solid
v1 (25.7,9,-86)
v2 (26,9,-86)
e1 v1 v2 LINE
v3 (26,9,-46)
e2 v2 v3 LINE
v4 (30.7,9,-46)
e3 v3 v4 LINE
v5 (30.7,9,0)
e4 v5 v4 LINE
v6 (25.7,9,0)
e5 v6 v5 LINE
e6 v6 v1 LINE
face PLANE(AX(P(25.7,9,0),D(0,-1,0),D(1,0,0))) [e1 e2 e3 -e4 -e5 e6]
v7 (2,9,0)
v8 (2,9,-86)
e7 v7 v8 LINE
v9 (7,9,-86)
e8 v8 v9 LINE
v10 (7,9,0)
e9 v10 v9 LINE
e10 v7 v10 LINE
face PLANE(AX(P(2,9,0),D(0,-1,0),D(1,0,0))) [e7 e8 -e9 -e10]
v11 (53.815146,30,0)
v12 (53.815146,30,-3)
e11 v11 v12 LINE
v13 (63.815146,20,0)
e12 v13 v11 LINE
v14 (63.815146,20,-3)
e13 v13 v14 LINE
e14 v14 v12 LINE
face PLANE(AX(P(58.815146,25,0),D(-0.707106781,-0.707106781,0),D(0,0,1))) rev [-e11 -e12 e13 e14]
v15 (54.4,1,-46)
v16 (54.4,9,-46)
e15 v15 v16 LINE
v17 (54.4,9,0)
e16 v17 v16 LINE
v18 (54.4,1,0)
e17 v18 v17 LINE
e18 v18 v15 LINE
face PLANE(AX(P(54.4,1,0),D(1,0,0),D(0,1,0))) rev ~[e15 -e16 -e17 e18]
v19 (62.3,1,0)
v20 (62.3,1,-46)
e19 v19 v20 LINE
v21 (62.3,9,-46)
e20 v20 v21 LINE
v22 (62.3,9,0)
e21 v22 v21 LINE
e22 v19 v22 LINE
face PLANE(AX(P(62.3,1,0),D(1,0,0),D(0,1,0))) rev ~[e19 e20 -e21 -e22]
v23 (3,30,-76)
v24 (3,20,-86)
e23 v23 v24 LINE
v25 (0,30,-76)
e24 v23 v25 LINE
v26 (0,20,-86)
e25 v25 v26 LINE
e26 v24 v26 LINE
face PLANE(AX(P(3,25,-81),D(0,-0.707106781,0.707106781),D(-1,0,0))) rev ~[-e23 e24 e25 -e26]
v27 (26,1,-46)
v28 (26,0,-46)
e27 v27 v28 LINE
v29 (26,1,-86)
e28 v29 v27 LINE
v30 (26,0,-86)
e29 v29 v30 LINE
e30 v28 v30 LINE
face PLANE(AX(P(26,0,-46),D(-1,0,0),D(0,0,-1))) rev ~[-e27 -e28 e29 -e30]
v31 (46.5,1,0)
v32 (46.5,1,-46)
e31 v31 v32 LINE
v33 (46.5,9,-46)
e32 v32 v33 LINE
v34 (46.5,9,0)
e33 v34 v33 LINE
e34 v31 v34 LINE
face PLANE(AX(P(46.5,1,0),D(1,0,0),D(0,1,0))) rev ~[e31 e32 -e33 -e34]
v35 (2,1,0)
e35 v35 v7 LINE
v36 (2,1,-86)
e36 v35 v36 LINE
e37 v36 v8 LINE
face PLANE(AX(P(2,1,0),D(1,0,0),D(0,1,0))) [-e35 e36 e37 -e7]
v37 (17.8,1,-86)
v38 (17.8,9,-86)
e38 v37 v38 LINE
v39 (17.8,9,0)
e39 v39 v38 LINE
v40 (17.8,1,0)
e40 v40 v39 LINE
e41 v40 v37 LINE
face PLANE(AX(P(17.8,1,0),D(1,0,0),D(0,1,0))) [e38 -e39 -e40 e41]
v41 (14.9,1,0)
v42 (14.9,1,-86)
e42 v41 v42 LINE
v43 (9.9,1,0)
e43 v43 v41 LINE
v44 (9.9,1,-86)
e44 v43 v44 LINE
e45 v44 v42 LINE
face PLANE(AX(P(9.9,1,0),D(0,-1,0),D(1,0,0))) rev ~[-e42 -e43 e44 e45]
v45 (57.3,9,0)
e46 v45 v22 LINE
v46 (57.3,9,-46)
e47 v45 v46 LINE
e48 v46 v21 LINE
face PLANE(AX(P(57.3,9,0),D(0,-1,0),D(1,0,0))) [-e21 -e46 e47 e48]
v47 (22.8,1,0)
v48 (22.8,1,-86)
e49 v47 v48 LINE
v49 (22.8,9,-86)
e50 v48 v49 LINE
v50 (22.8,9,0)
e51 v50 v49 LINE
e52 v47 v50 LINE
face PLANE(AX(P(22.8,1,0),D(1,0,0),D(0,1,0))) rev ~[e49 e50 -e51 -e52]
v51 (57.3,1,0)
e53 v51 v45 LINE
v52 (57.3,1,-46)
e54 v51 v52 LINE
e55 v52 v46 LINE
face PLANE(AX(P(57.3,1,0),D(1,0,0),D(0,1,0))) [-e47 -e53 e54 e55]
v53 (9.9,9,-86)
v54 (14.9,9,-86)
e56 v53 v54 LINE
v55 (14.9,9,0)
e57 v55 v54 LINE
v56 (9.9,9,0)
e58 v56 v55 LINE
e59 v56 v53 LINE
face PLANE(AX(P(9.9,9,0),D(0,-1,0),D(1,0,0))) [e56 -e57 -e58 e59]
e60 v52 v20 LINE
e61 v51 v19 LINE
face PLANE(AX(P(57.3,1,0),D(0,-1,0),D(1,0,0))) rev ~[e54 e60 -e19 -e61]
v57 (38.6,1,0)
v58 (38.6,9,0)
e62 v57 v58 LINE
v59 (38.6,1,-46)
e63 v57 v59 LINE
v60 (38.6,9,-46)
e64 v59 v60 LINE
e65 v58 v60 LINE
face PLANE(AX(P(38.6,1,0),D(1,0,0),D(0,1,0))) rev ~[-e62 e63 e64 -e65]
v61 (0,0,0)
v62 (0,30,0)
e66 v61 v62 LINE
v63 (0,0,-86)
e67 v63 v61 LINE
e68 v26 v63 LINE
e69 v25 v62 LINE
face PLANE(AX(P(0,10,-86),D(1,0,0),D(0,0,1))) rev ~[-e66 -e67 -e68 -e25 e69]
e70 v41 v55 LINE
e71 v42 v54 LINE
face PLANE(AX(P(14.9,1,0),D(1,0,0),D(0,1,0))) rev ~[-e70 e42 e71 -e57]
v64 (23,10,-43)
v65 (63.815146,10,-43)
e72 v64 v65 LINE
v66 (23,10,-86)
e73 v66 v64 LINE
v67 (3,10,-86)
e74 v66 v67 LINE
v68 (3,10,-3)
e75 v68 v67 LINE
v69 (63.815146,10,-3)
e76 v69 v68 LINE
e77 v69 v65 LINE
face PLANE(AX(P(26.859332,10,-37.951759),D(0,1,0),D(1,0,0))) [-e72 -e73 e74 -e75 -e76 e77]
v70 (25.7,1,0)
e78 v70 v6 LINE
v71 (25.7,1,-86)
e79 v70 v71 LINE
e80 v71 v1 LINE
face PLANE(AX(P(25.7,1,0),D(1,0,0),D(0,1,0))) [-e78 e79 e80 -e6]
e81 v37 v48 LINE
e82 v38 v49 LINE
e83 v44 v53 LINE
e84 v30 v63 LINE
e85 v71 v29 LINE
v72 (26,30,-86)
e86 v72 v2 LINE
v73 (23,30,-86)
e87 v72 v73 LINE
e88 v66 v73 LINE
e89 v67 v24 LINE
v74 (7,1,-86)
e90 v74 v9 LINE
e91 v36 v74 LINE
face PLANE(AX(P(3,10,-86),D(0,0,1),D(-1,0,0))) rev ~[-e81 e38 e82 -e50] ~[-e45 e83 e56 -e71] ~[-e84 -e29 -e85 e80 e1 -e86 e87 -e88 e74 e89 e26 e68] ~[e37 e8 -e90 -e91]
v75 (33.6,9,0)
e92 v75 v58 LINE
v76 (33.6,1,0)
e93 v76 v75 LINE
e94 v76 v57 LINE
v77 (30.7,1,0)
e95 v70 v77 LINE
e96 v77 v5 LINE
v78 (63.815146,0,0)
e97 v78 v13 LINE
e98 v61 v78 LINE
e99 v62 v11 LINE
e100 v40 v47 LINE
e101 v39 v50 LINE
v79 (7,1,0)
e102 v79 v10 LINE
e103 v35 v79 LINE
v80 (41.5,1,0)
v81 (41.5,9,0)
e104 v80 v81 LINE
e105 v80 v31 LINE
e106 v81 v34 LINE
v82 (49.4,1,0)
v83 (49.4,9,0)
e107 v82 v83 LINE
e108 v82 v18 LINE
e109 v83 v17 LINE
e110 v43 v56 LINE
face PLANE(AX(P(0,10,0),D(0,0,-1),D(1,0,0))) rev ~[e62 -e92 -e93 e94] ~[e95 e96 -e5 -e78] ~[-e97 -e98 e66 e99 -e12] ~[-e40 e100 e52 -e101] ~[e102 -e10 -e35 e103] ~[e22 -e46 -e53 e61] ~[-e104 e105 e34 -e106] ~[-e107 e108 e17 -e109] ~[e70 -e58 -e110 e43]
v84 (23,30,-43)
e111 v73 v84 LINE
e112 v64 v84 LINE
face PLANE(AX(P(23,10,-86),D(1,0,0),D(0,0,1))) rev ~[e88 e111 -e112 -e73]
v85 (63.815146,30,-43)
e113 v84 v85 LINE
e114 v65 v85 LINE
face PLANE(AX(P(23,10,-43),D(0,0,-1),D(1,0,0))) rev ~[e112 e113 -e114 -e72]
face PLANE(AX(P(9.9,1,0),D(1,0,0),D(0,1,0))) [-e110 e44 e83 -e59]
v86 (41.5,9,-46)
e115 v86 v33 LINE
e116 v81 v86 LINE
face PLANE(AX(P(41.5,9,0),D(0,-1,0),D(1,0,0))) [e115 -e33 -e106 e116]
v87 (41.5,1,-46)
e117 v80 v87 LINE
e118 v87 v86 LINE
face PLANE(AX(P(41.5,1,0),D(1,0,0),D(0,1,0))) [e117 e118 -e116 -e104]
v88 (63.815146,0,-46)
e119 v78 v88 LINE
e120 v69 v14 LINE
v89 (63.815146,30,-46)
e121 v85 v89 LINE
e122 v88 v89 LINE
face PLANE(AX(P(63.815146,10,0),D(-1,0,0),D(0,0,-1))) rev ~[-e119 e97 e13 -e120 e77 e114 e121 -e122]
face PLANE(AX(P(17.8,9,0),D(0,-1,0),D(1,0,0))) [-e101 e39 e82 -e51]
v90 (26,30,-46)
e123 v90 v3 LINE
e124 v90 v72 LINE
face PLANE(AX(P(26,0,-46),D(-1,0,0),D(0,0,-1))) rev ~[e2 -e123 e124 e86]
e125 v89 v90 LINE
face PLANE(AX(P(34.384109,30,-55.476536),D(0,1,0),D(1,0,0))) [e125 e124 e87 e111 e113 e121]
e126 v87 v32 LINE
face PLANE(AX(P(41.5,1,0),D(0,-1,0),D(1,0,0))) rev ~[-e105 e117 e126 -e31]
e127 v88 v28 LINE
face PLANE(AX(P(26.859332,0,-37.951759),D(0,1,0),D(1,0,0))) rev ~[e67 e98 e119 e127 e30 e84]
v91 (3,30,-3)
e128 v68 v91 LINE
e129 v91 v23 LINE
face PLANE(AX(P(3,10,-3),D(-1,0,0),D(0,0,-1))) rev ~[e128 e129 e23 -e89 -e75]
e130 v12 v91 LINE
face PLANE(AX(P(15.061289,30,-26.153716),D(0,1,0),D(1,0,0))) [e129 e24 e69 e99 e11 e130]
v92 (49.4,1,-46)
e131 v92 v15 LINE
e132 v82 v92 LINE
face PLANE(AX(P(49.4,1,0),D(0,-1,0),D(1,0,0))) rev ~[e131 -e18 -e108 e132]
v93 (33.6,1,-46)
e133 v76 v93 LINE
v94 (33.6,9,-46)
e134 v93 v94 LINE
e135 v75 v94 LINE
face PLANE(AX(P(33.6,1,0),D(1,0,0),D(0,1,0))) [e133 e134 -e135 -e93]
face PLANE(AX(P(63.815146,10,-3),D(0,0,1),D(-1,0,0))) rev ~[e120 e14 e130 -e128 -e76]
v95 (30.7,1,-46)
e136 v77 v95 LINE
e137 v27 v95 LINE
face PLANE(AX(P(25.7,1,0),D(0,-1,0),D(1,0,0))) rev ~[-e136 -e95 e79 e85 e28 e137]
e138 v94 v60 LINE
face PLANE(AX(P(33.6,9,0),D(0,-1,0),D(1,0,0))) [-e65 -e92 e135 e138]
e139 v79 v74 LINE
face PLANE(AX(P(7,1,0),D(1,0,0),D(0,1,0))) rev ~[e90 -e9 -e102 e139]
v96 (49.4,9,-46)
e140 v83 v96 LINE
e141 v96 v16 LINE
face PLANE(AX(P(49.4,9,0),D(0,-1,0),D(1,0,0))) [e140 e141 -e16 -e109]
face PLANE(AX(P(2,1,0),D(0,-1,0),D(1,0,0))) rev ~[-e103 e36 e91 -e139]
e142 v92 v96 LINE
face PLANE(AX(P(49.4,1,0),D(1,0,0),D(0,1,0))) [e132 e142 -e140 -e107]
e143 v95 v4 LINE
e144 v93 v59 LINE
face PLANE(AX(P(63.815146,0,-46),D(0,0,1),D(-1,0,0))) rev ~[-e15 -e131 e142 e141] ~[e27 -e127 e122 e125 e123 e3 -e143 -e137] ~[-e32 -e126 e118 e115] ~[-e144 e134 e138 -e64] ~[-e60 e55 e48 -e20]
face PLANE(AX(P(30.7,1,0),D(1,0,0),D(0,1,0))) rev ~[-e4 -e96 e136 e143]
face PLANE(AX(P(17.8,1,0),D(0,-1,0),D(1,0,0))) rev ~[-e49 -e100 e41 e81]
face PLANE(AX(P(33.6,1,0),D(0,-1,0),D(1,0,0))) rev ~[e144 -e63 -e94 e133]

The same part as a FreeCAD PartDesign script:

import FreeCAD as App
import Part
import Sketcher

V = App.Vector
Q = App.Units.Quantity


def edges_at(feature, points):
    """Names of the edges that pass closest to the given points."""
    edges = feature.Shape.Edges
    near = lambda p: min(range(len(edges)), key=lambda i: edges[i].distToShape(Part.Vertex(*p))[0])
    return sorted({f"Edge{near(p) + 1}" for p in points})

doc = App.newDocument("Part")
body = doc.addObject("PartDesign::Body", "Body")

sketch1 = body.newObject("Sketcher::SketchObject", "Sketch")
sketch1.AttachmentSupport = (doc.getObject("XZ_Plane"), [""])
sketch1.MapMode = "FlatFace"
sketch1.addGeometry(Part.LineSegment(V(0, 0, 0), V(64, 0, 0)), False)
sketch1.addGeometry(Part.LineSegment(V(64, 0, 0), V(64, -46, 0)), False)
sketch1.addGeometry(Part.LineSegment(V(64, -46, 0), V(26, -46, 0)), False)
sketch1.addGeometry(Part.LineSegment(V(26, -46, 0), V(26, -86, 0)), False)
sketch1.addGeometry(Part.LineSegment(V(26, -86, 0), V(0, -86, 0)), False)
sketch1.addGeometry(Part.LineSegment(V(0, -86, 0), V(0, 0, 0)), False)
sketch1.addConstraint(Sketcher.Constraint("Coincident", 0, 2, 1, 1))
sketch1.addConstraint(Sketcher.Constraint("Coincident", 1, 2, 2, 1))
sketch1.addConstraint(Sketcher.Constraint("Coincident", 2, 2, 3, 1))
sketch1.addConstraint(Sketcher.Constraint("Coincident", 3, 2, 4, 1))
sketch1.addConstraint(Sketcher.Constraint("Coincident", 4, 2, 5, 1))
sketch1.addConstraint(Sketcher.Constraint("Coincident", 5, 2, 0, 1))
sketch1.addConstraint(Sketcher.Constraint("Horizontal", 0))
sketch1.addConstraint(Sketcher.Constraint("Vertical", 1))
sketch1.addConstraint(Sketcher.Constraint("Horizontal", 2))
sketch1.addConstraint(Sketcher.Constraint("Vertical", 3))
sketch1.addConstraint(Sketcher.Constraint("Horizontal", 4))
sketch1.addConstraint(Sketcher.Constraint("Vertical", 5))
sketch1.addConstraint(Sketcher.Constraint("Coincident", 5, 2, -1, 1))
sketch1.addConstraint(Sketcher.Constraint("DistanceX", 4, 2, 4, 1, Q("26 mm")))
sketch1.addConstraint(Sketcher.Constraint("DistanceY", 1, 2, 1, 1, Q("46 mm")))
sketch1.addConstraint(Sketcher.Constraint("DistanceY", 3, 2, 3, 1, Q("40 mm")))
sketch1.addConstraint(Sketcher.Constraint("DistanceX", 0, 1, 0, 2, Q("63.815146 mm")))
pad1 = body.newObject("PartDesign::Pad", "Pad")
pad1.Profile = sketch1
pad1.Length = 10
pad1.Reversed = True

sketch2 = body.newObject("Sketcher::SketchObject", "Sketch001")
sketch2.AttachmentSupport = (doc.getObject("XZ_Plane"), [""])
sketch2.MapMode = "FlatFace"
sketch2.AttachmentOffset = App.Placement(V(0, 0, -10), App.Rotation())
sketch2.addGeometry(Part.LineSegment(V(0, -86, 0), V(0, 0, 0)), False)
sketch2.addGeometry(Part.LineSegment(V(0, 0, 0), V(63.8, 0, 0)), False)
sketch2.addGeometry(Part.LineSegment(V(63.8, 0, 0), V(63.8, -3, 0)), False)
sketch2.addGeometry(Part.LineSegment(V(63.8, -3, 0), V(3, -3, 0)), False)
sketch2.addGeometry(Part.LineSegment(V(3, -3, 0), V(3, -86, 0)), False)
sketch2.addGeometry(Part.LineSegment(V(3, -86, 0), V(0, -86, 0)), False)
sketch2.addGeometry(Part.LineSegment(V(63.8, -46, 0), V(26, -46, 0)), False)
sketch2.addGeometry(Part.LineSegment(V(26, -46, 0), V(26, -86, 0)), False)
sketch2.addGeometry(Part.LineSegment(V(26, -86, 0), V(23, -86, 0)), False)
sketch2.addGeometry(Part.LineSegment(V(23, -86, 0), V(23, -43, 0)), False)
sketch2.addGeometry(Part.LineSegment(V(23, -43, 0), V(63.8, -43, 0)), False)
sketch2.addGeometry(Part.LineSegment(V(63.8, -43, 0), V(63.8, -46, 0)), False)
sketch2.addConstraint(Sketcher.Constraint("Coincident", 0, 2, 1, 1))
sketch2.addConstraint(Sketcher.Constraint("Coincident", 1, 2, 2, 1))
sketch2.addConstraint(Sketcher.Constraint("Coincident", 2, 2, 3, 1))
sketch2.addConstraint(Sketcher.Constraint("Coincident", 3, 2, 4, 1))
sketch2.addConstraint(Sketcher.Constraint("Coincident", 4, 2, 5, 1))
sketch2.addConstraint(Sketcher.Constraint("Coincident", 5, 2, 0, 1))
sketch2.addConstraint(Sketcher.Constraint("Coincident", 6, 2, 7, 1))
sketch2.addConstraint(Sketcher.Constraint("Coincident", 7, 2, 8, 1))
sketch2.addConstraint(Sketcher.Constraint("Coincident", 8, 2, 9, 1))
sketch2.addConstraint(Sketcher.Constraint("Coincident", 9, 2, 10, 1))
sketch2.addConstraint(Sketcher.Constraint("Coincident", 10, 2, 11, 1))
sketch2.addConstraint(Sketcher.Constraint("Coincident", 11, 2, 6, 1))
sketch2.addConstraint(Sketcher.Constraint("Vertical", 0))
sketch2.addConstraint(Sketcher.Constraint("Horizontal", 1))
sketch2.addConstraint(Sketcher.Constraint("Vertical", 2))
sketch2.addConstraint(Sketcher.Constraint("Horizontal", 3))
sketch2.addConstraint(Sketcher.Constraint("Vertical", 4))
sketch2.addConstraint(Sketcher.Constraint("Horizontal", 5))
sketch2.addConstraint(Sketcher.Constraint("Horizontal", 6))
sketch2.addConstraint(Sketcher.Constraint("Vertical", 7))
sketch2.addConstraint(Sketcher.Constraint("Horizontal", 8))
sketch2.addConstraint(Sketcher.Constraint("Vertical", 9))
sketch2.addConstraint(Sketcher.Constraint("Horizontal", 10))
sketch2.addConstraint(Sketcher.Constraint("Vertical", 11))
sketch2.addConstraint(Sketcher.Constraint("Coincident", 0, 2, -1, 1))
sketch2.addConstraint(Sketcher.Constraint("Horizontal", 5, 2, 7, 2))
sketch2.addConstraint(Sketcher.Constraint("Vertical", 2, 2, 10, 2))
sketch2.addConstraint(Sketcher.Constraint("Equal", 5, 8))
sketch2.addConstraint(Sketcher.Constraint("Equal", 8, 2))
sketch2.addConstraint(Sketcher.Constraint("Equal", 2, 11))
sketch2.addConstraint(Sketcher.Constraint("DistanceX", 5, 2, 5, 1, Q("3 mm")))
sketch2.addConstraint(Sketcher.Constraint("DistanceY", 0, 1, 0, 2, Q("86 mm")))
sketch2.addConstraint(Sketcher.Constraint("DistanceY", 7, 2, 7, 1, Q("40 mm")))
sketch2.addConstraint(Sketcher.Constraint("DistanceX", -1, 1, 6, 2, Q("26 mm")))
sketch2.addConstraint(Sketcher.Constraint("DistanceX", 1, 1, 1, 2, Q("63.815146 mm")))
pad2 = body.newObject("PartDesign::Pad", "Pad001")
pad2.Profile = sketch2
pad2.Length = 20
pad2.Reversed = True
doc.recompute()

chamfer = body.newObject("PartDesign::Chamfer", "Chamfer")
chamfer.Base = (pad2, edges_at(pad2, [(63.815, 30, -1.5), (1.5, 30, -86)]))
chamfer.Size = 10

sketch3 = body.newObject("Sketcher::SketchObject", "Sketch002")
sketch3.AttachmentSupport = (doc.getObject("XY_Plane"), [""])
sketch3.MapMode = "FlatFace"
sketch3.addGeometry(Part.LineSegment(V(10, 9, 0), V(10, 1, 0)), False)
sketch3.addGeometry(Part.LineSegment(V(10, 1, 0), V(15, 1, 0)), False)
sketch3.addGeometry(Part.LineSegment(V(15, 1, 0), V(15, 9, 0)), False)
sketch3.addGeometry(Part.LineSegment(V(15, 9, 0), V(10, 9, 0)), False)
sketch3.addGeometry(Part.LineSegment(V(2, 9, 0), V(2, 1, 0)), False)
sketch3.addGeometry(Part.LineSegment(V(2, 1, 0), V(7, 1, 0)), False)
sketch3.addGeometry(Part.LineSegment(V(7, 1, 0), V(7, 9, 0)), False)
sketch3.addGeometry(Part.LineSegment(V(7, 9, 0), V(2, 9, 0)), False)
sketch3.addGeometry(Part.LineSegment(V(18, 9, 0), V(18, 1, 0)), False)
sketch3.addGeometry(Part.LineSegment(V(18, 1, 0), V(23, 1, 0)), False)
sketch3.addGeometry(Part.LineSegment(V(23, 1, 0), V(23, 9, 0)), False)
sketch3.addGeometry(Part.LineSegment(V(23, 9, 0), V(18, 9, 0)), False)
sketch3.addGeometry(Part.LineSegment(V(26, 9, 0), V(26, 1, 0)), False)
sketch3.addGeometry(Part.LineSegment(V(26, 1, 0), V(31, 1, 0)), False)
sketch3.addGeometry(Part.LineSegment(V(31, 1, 0), V(31, 9, 0)), False)
sketch3.addGeometry(Part.LineSegment(V(31, 9, 0), V(26, 9, 0)), False)
sketch3.addGeometry(Part.LineSegment(V(34, 9, 0), V(34, 1, 0)), False)
sketch3.addGeometry(Part.LineSegment(V(34, 1, 0), V(39, 1, 0)), False)
sketch3.addGeometry(Part.LineSegment(V(39, 1, 0), V(39, 9, 0)), False)
sketch3.addGeometry(Part.LineSegment(V(39, 9, 0), V(34, 9, 0)), False)
sketch3.addGeometry(Part.LineSegment(V(42, 9, 0), V(42, 1, 0)), False)
sketch3.addGeometry(Part.LineSegment(V(42, 1, 0), V(46, 1, 0)), False)
sketch3.addGeometry(Part.LineSegment(V(46, 1, 0), V(46, 9, 0)), False)
sketch3.addGeometry(Part.LineSegment(V(46, 9, 0), V(42, 9, 0)), False)
sketch3.addGeometry(Part.LineSegment(V(49, 9, 0), V(49, 1, 0)), False)
sketch3.addGeometry(Part.LineSegment(V(49, 1, 0), V(54, 1, 0)), False)
sketch3.addGeometry(Part.LineSegment(V(54, 1, 0), V(54, 9, 0)), False)
sketch3.addGeometry(Part.LineSegment(V(54, 9, 0), V(49, 9, 0)), False)
sketch3.addGeometry(Part.LineSegment(V(57, 9, 0), V(57, 1, 0)), False)
sketch3.addGeometry(Part.LineSegment(V(57, 1, 0), V(62, 1, 0)), False)
sketch3.addGeometry(Part.LineSegment(V(62, 1, 0), V(62, 9, 0)), False)
sketch3.addGeometry(Part.LineSegment(V(62, 9, 0), V(57, 9, 0)), False)
sketch3.addConstraint(Sketcher.Constraint("Coincident", 0, 2, 1, 1))
sketch3.addConstraint(Sketcher.Constraint("Coincident", 1, 2, 2, 1))
sketch3.addConstraint(Sketcher.Constraint("Coincident", 2, 2, 3, 1))
sketch3.addConstraint(Sketcher.Constraint("Coincident", 3, 2, 0, 1))
sketch3.addConstraint(Sketcher.Constraint("Coincident", 4, 2, 5, 1))
sketch3.addConstraint(Sketcher.Constraint("Coincident", 5, 2, 6, 1))
sketch3.addConstraint(Sketcher.Constraint("Coincident", 6, 2, 7, 1))
sketch3.addConstraint(Sketcher.Constraint("Coincident", 7, 2, 4, 1))
sketch3.addConstraint(Sketcher.Constraint("Coincident", 8, 2, 9, 1))
sketch3.addConstraint(Sketcher.Constraint("Coincident", 9, 2, 10, 1))
sketch3.addConstraint(Sketcher.Constraint("Coincident", 10, 2, 11, 1))
sketch3.addConstraint(Sketcher.Constraint("Coincident", 11, 2, 8, 1))
sketch3.addConstraint(Sketcher.Constraint("Coincident", 12, 2, 13, 1))
sketch3.addConstraint(Sketcher.Constraint("Coincident", 13, 2, 14, 1))
sketch3.addConstraint(Sketcher.Constraint("Coincident", 14, 2, 15, 1))
sketch3.addConstraint(Sketcher.Constraint("Coincident", 15, 2, 12, 1))
sketch3.addConstraint(Sketcher.Constraint("Coincident", 16, 2, 17, 1))
sketch3.addConstraint(Sketcher.Constraint("Coincident", 17, 2, 18, 1))
sketch3.addConstraint(Sketcher.Constraint("Coincident", 18, 2, 19, 1))
sketch3.addConstraint(Sketcher.Constraint("Coincident", 19, 2, 16, 1))
sketch3.addConstraint(Sketcher.Constraint("Coincident", 20, 2, 21, 1))
sketch3.addConstraint(Sketcher.Constraint("Coincident", 21, 2, 22, 1))
sketch3.addConstraint(Sketcher.Constraint("Coincident", 22, 2, 23, 1))
sketch3.addConstraint(Sketcher.Constraint("Coincident", 23, 2, 20, 1))
sketch3.addConstraint(Sketcher.Constraint("Coincident", 24, 2, 25, 1))
sketch3.addConstraint(Sketcher.Constraint("Coincident", 25, 2, 26, 1))
sketch3.addConstraint(Sketcher.Constraint("Coincident", 26, 2, 27, 1))
sketch3.addConstraint(Sketcher.Constraint("Coincident", 27, 2, 24, 1))
sketch3.addConstraint(Sketcher.Constraint("Coincident", 28, 2, 29, 1))
sketch3.addConstraint(Sketcher.Constraint("Coincident", 29, 2, 30, 1))
sketch3.addConstraint(Sketcher.Constraint("Coincident", 30, 2, 31, 1))
sketch3.addConstraint(Sketcher.Constraint("Coincident", 31, 2, 28, 1))
sketch3.addConstraint(Sketcher.Constraint("Vertical", 0))
sketch3.addConstraint(Sketcher.Constraint("Horizontal", 1))
sketch3.addConstraint(Sketcher.Constraint("Vertical", 2))
sketch3.addConstraint(Sketcher.Constraint("Horizontal", 3))
sketch3.addConstraint(Sketcher.Constraint("Vertical", 4))
sketch3.addConstraint(Sketcher.Constraint("Horizontal", 5))
sketch3.addConstraint(Sketcher.Constraint("Vertical", 6))
sketch3.addConstraint(Sketcher.Constraint("Horizontal", 7))
sketch3.addConstraint(Sketcher.Constraint("Vertical", 8))
sketch3.addConstraint(Sketcher.Constraint("Horizontal", 9))
sketch3.addConstraint(Sketcher.Constraint("Vertical", 10))
sketch3.addConstraint(Sketcher.Constraint("Horizontal", 11))
sketch3.addConstraint(Sketcher.Constraint("Vertical", 12))
sketch3.addConstraint(Sketcher.Constraint("Horizontal", 13))
sketch3.addConstraint(Sketcher.Constraint("Vertical", 14))
sketch3.addConstraint(Sketcher.Constraint("Horizontal", 15))
sketch3.addConstraint(Sketcher.Constraint("Vertical", 16))
sketch3.addConstraint(Sketcher.Constraint("Horizontal", 17))
sketch3.addConstraint(Sketcher.Constraint("Vertical", 18))
sketch3.addConstraint(Sketcher.Constraint("Horizontal", 19))
sketch3.addConstraint(Sketcher.Constraint("Vertical", 20))
sketch3.addConstraint(Sketcher.Constraint("Horizontal", 21))
sketch3.addConstraint(Sketcher.Constraint("Vertical", 22))
sketch3.addConstraint(Sketcher.Constraint("Horizontal", 23))
sketch3.addConstraint(Sketcher.Constraint("Vertical", 24))
sketch3.addConstraint(Sketcher.Constraint("Horizontal", 25))
sketch3.addConstraint(Sketcher.Constraint("Vertical", 26))
sketch3.addConstraint(Sketcher.Constraint("Horizontal", 27))
sketch3.addConstraint(Sketcher.Constraint("Vertical", 28))
sketch3.addConstraint(Sketcher.Constraint("Horizontal", 29))
sketch3.addConstraint(Sketcher.Constraint("Vertical", 30))
sketch3.addConstraint(Sketcher.Constraint("Horizontal", 31))
sketch3.addConstraint(Sketcher.Constraint("Horizontal", 1, 2, 4, 2))
sketch3.addConstraint(Sketcher.Constraint("Horizontal", 3, 2, 6, 2))
sketch3.addConstraint(Sketcher.Constraint("Horizontal", 5, 2, 8, 2))
sketch3.addConstraint(Sketcher.Constraint("Horizontal", 7, 2, 10, 2))
sketch3.addConstraint(Sketcher.Constraint("Horizontal", 9, 2, 12, 2))
sketch3.addConstraint(Sketcher.Constraint("Horizontal", 11, 2, 14, 2))
sketch3.addConstraint(Sketcher.Constraint("Horizontal", 13, 2, 16, 2))
sketch3.addConstraint(Sketcher.Constraint("Horizontal", 15, 2, 18, 2))
sketch3.addConstraint(Sketcher.Constraint("Horizontal", 17, 2, 20, 2))
sketch3.addConstraint(Sketcher.Constraint("Horizontal", 19, 2, 22, 2))
sketch3.addConstraint(Sketcher.Constraint("Horizontal", 21, 2, 24, 2))
sketch3.addConstraint(Sketcher.Constraint("Horizontal", 23, 2, 26, 2))
sketch3.addConstraint(Sketcher.Constraint("Horizontal", 25, 2, 28, 2))
sketch3.addConstraint(Sketcher.Constraint("Horizontal", 27, 2, 30, 2))
sketch3.addConstraint(Sketcher.Constraint("Equal", 3, 5))
sketch3.addConstraint(Sketcher.Constraint("Equal", 7, 9))
sketch3.addConstraint(Sketcher.Constraint("Equal", 11, 13))
sketch3.addConstraint(Sketcher.Constraint("Equal", 15, 17))
sketch3.addConstraint(Sketcher.Constraint("Equal", 19, 21))
sketch3.addConstraint(Sketcher.Constraint("Equal", 23, 25))
sketch3.addConstraint(Sketcher.Constraint("Equal", 27, 29))
sketch3.addConstraint(Sketcher.Constraint("DistanceX", 1, 1, 1, 2, Q("5 mm")))
sketch3.addConstraint(Sketcher.Constraint("DistanceY", 0, 2, 0, 1, Q("8 mm")))
sketch3.addConstraint(Sketcher.Constraint("DistanceY", -1, 1, 0, 2, Q("1 mm")))
sketch3.addConstraint(Sketcher.Constraint("DistanceX", -1, 1, 4, 2, Q("2 mm")))
sketch3.addConstraint(Sketcher.Constraint("DistanceX", -1, 1, 0, 2, Q("9.9 mm")))
sketch3.addConstraint(Sketcher.Constraint("DistanceX", -1, 1, 8, 2, Q("17.8 mm")))
sketch3.addConstraint(Sketcher.Constraint("DistanceX", -1, 1, 12, 2, Q("25.7 mm")))
sketch3.addConstraint(Sketcher.Constraint("DistanceX", -1, 1, 16, 2, Q("33.6 mm")))
sketch3.addConstraint(Sketcher.Constraint("DistanceX", -1, 1, 20, 2, Q("41.5 mm")))
sketch3.addConstraint(Sketcher.Constraint("DistanceX", -1, 1, 24, 2, Q("49.4 mm")))
sketch3.addConstraint(Sketcher.Constraint("DistanceX", -1, 1, 28, 2, Q("57.3 mm")))
pocket1 = body.newObject("PartDesign::Pocket", "Pocket")
pocket1.Profile = sketch3
pocket1.Length = 99

doc.recompute()
